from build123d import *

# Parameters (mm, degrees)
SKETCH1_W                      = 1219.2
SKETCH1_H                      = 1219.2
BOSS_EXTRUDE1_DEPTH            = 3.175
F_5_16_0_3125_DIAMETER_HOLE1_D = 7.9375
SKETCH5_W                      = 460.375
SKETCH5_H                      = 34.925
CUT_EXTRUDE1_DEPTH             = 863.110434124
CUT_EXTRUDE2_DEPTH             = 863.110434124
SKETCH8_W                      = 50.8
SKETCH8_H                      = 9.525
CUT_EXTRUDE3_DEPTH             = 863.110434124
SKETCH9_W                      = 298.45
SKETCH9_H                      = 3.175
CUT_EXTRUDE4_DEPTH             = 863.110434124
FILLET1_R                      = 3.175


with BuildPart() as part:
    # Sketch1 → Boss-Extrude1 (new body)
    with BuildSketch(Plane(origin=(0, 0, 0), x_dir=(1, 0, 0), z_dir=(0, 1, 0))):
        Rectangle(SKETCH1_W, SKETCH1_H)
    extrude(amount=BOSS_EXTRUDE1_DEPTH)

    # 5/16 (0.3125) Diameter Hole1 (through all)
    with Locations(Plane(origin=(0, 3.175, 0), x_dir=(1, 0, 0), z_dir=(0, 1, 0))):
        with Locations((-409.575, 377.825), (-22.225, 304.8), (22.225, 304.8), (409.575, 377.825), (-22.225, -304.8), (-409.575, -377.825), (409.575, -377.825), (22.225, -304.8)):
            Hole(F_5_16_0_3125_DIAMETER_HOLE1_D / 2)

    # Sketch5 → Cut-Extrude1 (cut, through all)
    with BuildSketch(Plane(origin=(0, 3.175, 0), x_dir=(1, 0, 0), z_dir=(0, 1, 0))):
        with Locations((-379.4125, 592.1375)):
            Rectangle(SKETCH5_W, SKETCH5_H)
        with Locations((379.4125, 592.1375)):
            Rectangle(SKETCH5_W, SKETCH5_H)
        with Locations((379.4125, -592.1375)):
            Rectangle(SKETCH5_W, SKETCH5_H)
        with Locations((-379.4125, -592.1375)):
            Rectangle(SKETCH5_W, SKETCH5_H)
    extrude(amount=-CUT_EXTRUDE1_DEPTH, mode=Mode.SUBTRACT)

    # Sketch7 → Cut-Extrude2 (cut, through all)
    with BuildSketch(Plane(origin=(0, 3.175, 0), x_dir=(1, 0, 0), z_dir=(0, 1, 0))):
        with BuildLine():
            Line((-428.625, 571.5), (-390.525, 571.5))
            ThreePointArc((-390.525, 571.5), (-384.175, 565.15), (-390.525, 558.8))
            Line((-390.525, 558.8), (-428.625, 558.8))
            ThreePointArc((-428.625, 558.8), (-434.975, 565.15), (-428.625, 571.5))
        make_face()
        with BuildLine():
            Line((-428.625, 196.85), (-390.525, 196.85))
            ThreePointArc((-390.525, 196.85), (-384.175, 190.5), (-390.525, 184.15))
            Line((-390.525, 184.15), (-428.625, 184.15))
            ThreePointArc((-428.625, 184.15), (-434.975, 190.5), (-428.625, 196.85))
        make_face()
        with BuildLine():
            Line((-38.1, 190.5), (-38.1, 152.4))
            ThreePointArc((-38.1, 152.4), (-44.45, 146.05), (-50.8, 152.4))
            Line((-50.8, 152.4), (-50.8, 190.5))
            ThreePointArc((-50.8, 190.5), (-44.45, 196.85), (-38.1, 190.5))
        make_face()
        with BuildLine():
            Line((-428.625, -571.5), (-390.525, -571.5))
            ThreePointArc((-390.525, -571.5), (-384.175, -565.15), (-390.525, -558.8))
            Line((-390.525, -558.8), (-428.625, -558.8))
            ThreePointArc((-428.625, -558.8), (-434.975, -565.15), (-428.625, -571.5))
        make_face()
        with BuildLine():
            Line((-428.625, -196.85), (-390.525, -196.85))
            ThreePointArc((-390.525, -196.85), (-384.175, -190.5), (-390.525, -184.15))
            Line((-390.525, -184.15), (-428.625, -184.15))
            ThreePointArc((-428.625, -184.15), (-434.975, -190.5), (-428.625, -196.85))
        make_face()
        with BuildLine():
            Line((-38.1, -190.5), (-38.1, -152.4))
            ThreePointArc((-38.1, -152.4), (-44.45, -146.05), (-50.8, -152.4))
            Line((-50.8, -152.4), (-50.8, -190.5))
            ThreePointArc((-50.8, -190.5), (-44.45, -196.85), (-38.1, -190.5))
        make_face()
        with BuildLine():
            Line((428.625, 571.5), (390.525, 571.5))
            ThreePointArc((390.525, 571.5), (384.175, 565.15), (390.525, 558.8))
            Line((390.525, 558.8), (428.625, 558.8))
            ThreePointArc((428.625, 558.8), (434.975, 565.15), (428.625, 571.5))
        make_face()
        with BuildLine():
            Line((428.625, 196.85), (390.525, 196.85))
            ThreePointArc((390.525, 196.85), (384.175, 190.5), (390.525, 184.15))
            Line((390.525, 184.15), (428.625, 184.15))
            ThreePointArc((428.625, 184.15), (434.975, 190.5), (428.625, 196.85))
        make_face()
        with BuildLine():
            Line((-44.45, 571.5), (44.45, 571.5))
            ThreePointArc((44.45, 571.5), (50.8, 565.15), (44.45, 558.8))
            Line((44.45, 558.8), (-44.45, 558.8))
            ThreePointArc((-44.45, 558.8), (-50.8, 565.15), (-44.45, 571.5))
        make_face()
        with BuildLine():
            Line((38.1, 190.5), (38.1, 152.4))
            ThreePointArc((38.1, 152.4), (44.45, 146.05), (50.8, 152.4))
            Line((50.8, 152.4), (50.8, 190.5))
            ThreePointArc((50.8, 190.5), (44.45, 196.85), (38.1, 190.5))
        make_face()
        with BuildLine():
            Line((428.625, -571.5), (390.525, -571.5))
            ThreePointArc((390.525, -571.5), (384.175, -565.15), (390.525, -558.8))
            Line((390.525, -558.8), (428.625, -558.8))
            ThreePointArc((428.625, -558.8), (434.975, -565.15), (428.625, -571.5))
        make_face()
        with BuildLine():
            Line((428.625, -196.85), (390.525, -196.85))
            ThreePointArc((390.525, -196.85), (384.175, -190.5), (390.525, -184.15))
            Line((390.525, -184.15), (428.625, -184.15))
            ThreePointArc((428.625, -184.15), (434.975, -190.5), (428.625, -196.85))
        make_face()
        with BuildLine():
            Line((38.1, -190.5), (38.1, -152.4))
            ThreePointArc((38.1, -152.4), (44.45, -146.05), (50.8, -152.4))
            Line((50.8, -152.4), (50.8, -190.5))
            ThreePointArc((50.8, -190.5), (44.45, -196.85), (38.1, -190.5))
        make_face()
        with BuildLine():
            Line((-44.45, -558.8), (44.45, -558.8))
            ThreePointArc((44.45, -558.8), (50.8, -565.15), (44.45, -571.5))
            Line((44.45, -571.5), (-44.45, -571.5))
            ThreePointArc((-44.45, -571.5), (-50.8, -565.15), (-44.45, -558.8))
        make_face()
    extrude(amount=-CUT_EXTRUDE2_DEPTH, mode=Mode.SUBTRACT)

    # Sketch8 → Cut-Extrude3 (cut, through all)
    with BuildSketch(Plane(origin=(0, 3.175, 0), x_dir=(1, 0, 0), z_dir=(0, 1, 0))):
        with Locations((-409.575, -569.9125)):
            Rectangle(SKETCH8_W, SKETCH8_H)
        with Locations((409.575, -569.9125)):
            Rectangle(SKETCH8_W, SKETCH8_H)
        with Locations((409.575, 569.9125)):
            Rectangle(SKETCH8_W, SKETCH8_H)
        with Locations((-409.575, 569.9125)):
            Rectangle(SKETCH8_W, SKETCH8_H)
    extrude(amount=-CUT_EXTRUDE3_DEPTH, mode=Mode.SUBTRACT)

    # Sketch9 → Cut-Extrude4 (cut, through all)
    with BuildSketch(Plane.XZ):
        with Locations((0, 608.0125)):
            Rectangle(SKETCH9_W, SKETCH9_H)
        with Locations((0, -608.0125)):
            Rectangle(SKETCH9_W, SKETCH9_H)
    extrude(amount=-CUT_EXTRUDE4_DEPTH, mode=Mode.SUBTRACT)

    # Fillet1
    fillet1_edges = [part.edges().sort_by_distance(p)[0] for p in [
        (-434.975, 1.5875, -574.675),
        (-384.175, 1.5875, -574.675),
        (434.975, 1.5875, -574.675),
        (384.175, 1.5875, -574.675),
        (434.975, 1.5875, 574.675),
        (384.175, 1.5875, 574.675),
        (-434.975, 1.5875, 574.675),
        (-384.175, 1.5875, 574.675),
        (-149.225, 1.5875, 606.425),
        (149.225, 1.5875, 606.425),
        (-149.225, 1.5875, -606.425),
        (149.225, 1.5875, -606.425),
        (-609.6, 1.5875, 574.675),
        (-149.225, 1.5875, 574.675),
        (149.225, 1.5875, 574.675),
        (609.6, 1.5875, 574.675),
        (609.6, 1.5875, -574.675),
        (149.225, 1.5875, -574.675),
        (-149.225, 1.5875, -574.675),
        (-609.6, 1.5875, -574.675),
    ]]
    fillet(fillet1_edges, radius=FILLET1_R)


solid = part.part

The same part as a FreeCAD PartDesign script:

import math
import FreeCAD as App
import Part
import Sketcher
Q = App.Units.Quantity


def edges_at(feature, points):
    """Names of the edges that pass closest to the given points."""
    edges = feature.Shape.Edges
    near = lambda p: min(range(len(edges)), key=lambda i: edges[i].distToShape(Part.Vertex(*p))[0])
    return sorted({f"Edge{near(p) + 1}" for p in points})

doc = App.newDocument("Part")
body = doc.addObject("PartDesign::Body", "Body")

# Sketch on XZ plane
sketch1 = doc.addObject("Sketcher::SketchObject", "Sketch")
body.addObject(sketch1)
sketch1.AttachmentSupport = (doc.XZ_Plane, [""])
sketch1.MapMode = "FlatFace"
sketch1.addGeometry([
    Part.LineSegment(App.Vector(-610, -610, 0), App.Vector(-610, 610, 0)),
    Part.LineSegment(App.Vector(-610, 610, 0), App.Vector(610, 610, 0)),
    Part.LineSegment(App.Vector(610, 610, 0), App.Vector(610, -610, 0)),
    Part.LineSegment(App.Vector(610, -610, 0), App.Vector(-610, -610, 0)),
], False)
sketch1.addConstraint([
    Sketcher.Constraint("Coincident", 0, 2, 1, 1),
    Sketcher.Constraint("Coincident", 1, 2, 2, 1),
    Sketcher.Constraint("Coincident", 2, 2, 3, 1),
    Sketcher.Constraint("Coincident", 3, 2, 0, 1),
    Sketcher.Constraint("Vertical", 0),
    Sketcher.Constraint("Horizontal", 1),
    Sketcher.Constraint("Vertical", 2),
    Sketcher.Constraint("Horizontal", 3),
    Sketcher.Constraint("Symmetric", 0, 2, 2, 2, -1, 1),
    Sketcher.Constraint("Equal", 3, 0),
    Sketcher.Constraint("DistanceX", 1, 1, 1, 2, Q("48 in")),
])
pad1 = doc.addObject("PartDesign::Pad", "Pad")
body.addObject(pad1)
pad1.Profile = sketch1
pad1.Length = Q("0.125 in")
pad1.Reversed = True

# Sketch on XZ plane
sketch2 = doc.addObject("Sketcher::SketchObject", "Sketch001")
body.addObject(sketch2)
sketch2.AttachmentSupport = (doc.XZ_Plane, [""])
sketch2.MapMode = "FlatFace"
sketch2.AttachmentOffset = App.Placement(App.Vector(0, 0, -0.125 * 25.4), App.Rotation())
sketch2.addGeometry([
    Part.Circle(App.Vector(-409.6, -377.8, 0), App.Vector(0, 0, 1), 4),  # 0
    Part.Circle(App.Vector(-22.2, -304.8, 0), App.Vector(0, 0, 1), 4),  # 1
    Part.Circle(App.Vector(22.2, -304.8, 0), App.Vector(0, 0, 1), 4),  # 2
    Part.Circle(App.Vector(409.6, -377.8, 0), App.Vector(0, 0, 1), 4),  # 3
    Part.Circle(App.Vector(-22.2, 304.8, 0), App.Vector(0, 0, 1), 4),  # 4
    Part.Circle(App.Vector(-409.6, 377.8, 0), App.Vector(0, 0, 1), 4),  # 5
    Part.Circle(App.Vector(409.6, 377.8, 0), App.Vector(0, 0, 1), 4),  # 6
    Part.Circle(App.Vector(22.2, 304.8, 0), App.Vector(0, 0, 1), 4),  # 7
], False)
sketch2.addConstraint([
    Sketcher.Constraint("Equal", 0, 1),
    Sketcher.Constraint("Equal", 1, 2),
    Sketcher.Constraint("Equal", 2, 3),
    Sketcher.Constraint("Equal", 3, 4),
    Sketcher.Constraint("Equal", 4, 5),
    Sketcher.Constraint("Equal", 5, 6),
    Sketcher.Constraint("Equal", 6, 7),
    Sketcher.Constraint("Symmetric", 2, 3, 4, 3, -1, 1),
    Sketcher.Constraint("Symmetric", 3, 3, 5, 3, -1, 1),
    Sketcher.Constraint("Symmetric", 0, 3, 6, 3, -1, 1),
    Sketcher.Constraint("Symmetric", 1, 3, 7, 3, -1, 1),
    Sketcher.Constraint("Symmetric", 1, 3, 2, 3, -2),
    Sketcher.Constraint("Symmetric", 0, 3, 3, 3, -2),
    Sketcher.Constraint("Diameter", 0, Q("0.3125 in")),
    Sketcher.Constraint("DistanceY", 1, 3, -1, 1, Q("12 in")),
    Sketcher.Constraint("DistanceX", 0, 3, 2, 3, Q("17 in")),
    Sketcher.Constraint("DistanceX", 0, 3, 1, 3, Q("15.25 in")),
    Sketcher.Constraint("DistanceY", 0, 3, 5, 3, Q("29.75 in")),
])
doc.recompute()
hole = doc.addObject("PartDesign::Hole", "Hole")
body.addObject(hole)
hole.Profile = sketch2
hole.ThreadType = "None"
hole.Diameter = Q("0.3125 in")
hole.DepthType = "ThroughAll"
hole.Reversed = True

# Sketch on XZ plane
sketch3 = doc.addObject("Sketcher::SketchObject", "Sketch002")
body.addObject(sketch3)
sketch3.AttachmentSupport = (doc.XZ_Plane, [""])
sketch3.MapMode = "FlatFace"
sketch3.AttachmentOffset = App.Placement(App.Vector(0, 0, -0.125 * 25.4), App.Rotation())
sketch3.addGeometry([
    Part.LineSegment(App.Vector(-610, -610, 0), App.Vector(-610, -575, 0)),  # 0
    Part.LineSegment(App.Vector(-610, -575, 0), App.Vector(-149, -575, 0)),  # 1
    Part.LineSegment(App.Vector(-149, -575, 0), App.Vector(-149, -610, 0)),  # 2
    Part.LineSegment(App.Vector(-149, -610, 0), App.Vector(-610, -610, 0)),  # 3
    Part.LineSegment(App.Vector(149, -610, 0), App.Vector(149, -575, 0)),  # 4
    Part.LineSegment(App.Vector(149, -575, 0), App.Vector(610, -575, 0)),  # 5
    Part.LineSegment(App.Vector(610, -575, 0), App.Vector(610, -610, 0)),  # 6
    Part.LineSegment(App.Vector(610, -610, 0), App.Vector(149, -610, 0)),  # 7
    Part.LineSegment(App.Vector(149, 575, 0), App.Vector(149, 610, 0)),  # 8
    Part.LineSegment(App.Vector(149, 610, 0), App.Vector(610, 610, 0)),  # 9
    Part.LineSegment(App.Vector(610, 610, 0), App.Vector(610, 575, 0)),  # 10
    Part.LineSegment(App.Vector(610, 575, 0), App.Vector(149, 575, 0)),  # 11
    Part.LineSegment(App.Vector(-610, 575, 0), App.Vector(-610, 610, 0)),  # 12
    Part.LineSegment(App.Vector(-610, 610, 0), App.Vector(-149, 610, 0)),  # 13
    Part.LineSegment(App.Vector(-149, 610, 0), App.Vector(-149, 575, 0)),  # 14
    Part.LineSegment(App.Vector(-149, 575, 0), App.Vector(-610, 575, 0)),  # 15
], False)
sketch3.addConstraint([
    Sketcher.Constraint("Coincident", 0, 2, 1, 1),
    Sketcher.Constraint("Coincident", 1, 2, 2, 1),
    Sketcher.Constraint("Coincident", 2, 2, 3, 1),
    Sketcher.Constraint("Coincident", 3, 2, 0, 1),
    Sketcher.Constraint("Coincident", 4, 2, 5, 1),
    Sketcher.Constraint("Coincident", 5, 2, 6, 1),
    Sketcher.Constraint("Coincident", 6, 2, 7, 1),
    Sketcher.Constraint("Coincident", 7, 2, 4, 1),
    Sketcher.Constraint("Coincident", 8, 2, 9, 1),
    Sketcher.Constraint("Coincident", 9, 2, 10, 1),
    Sketcher.Constraint("Coincident", 10, 2, 11, 1),
    Sketcher.Constraint("Coincident", 11, 2, 8, 1),
    Sketcher.Constraint("Coincident", 12, 2, 13, 1),
    Sketcher.Constraint("Coincident", 13, 2, 14, 1),
    Sketcher.Constraint("Coincident", 14, 2, 15, 1),
    Sketcher.Constraint("Coincident", 15, 2, 12, 1),
    Sketcher.Constraint("Vertical", 0),
    Sketcher.Constraint("Horizontal", 1),
    Sketcher.Constraint("Vertical", 2),
    Sketcher.Constraint("Horizontal", 3),
    Sketcher.Constraint("Vertical", 4),
    Sketcher.Constraint("Horizontal", 5),
    Sketcher.Constraint("Vertical", 6),
    Sketcher.Constraint("Horizontal", 7),
    Sketcher.Constraint("Vertical", 8),
    Sketcher.Constraint("Horizontal", 9),
    Sketcher.Constraint("Vertical", 10),
    Sketcher.Constraint("Horizontal", 11),
    Sketcher.Constraint("Vertical", 12),
    Sketcher.Constraint("Horizontal", 13),
    Sketcher.Constraint("Vertical", 14),
    Sketcher.Constraint("Horizontal", 15),
    Sketcher.Constraint("Symmetric", 2, 2, 8, 2, -1, 1),
    Sketcher.Constraint("Symmetric", 0, 2, 10, 2, -1, 1),
    Sketcher.Constraint("Symmetric", 6, 2, 12, 2, -1, 1),
    Sketcher.Constraint("Symmetric", 4, 2, 14, 2, -1, 1),
    Sketcher.Constraint("Symmetric", 1, 2, 4, 2, -2),
    Sketcher.Constraint("Symmetric", 3, 2, 6, 2, -2),
    Sketcher.Constraint("DistanceX", 0, 2, -1, 1, Q("24 in")),
    Sketcher.Constraint("DistanceY", 2, 2, -1, 1, Q("24 in")),
    Sketcher.Constraint("DistanceX", 1, 1, 1, 2, Q("18.125 in")),
    Sketcher.Constraint("DistanceY", 0, 1, 0, 2, Q("1.375 in")),
])
pocket1 = doc.addObject("PartDesign::Pocket", "Pocket")
body.addObject(pocket1)
pocket1.Profile = sketch3
pocket1.Type = "ThroughAll"
pocket1.Reversed = True

# Sketch on XZ plane
sketch4 = doc.addObject("Sketcher::SketchObject", "Sketch003")
body.addObject(sketch4)
sketch4.AttachmentSupport = (doc.XZ_Plane, [""])
sketch4.MapMode = "FlatFace"
sketch4.AttachmentOffset = App.Placement(App.Vector(0, 0, -0.125 * 25.4), App.Rotation())
sketch4.addGeometry([
    Part.LineSegment(App.Vector(-391, -572, 0), App.Vector(-429, -572, 0)),  # 0
    Part.ArcOfCircle(Part.Circle(App.Vector(-429, -565, 0), App.Vector(0, 0, 1), 6), math.radians(90), math.radians(270)),  # 1
    Part.LineSegment(App.Vector(-429, -559, 0), App.Vector(-391, -559, 0)),  # 2
    Part.ArcOfCircle(Part.Circle(App.Vector(-391, -565, 0), App.Vector(0, 0, 1), 6), math.radians(-90), math.radians(90)),  # 3
    Part.LineSegment(App.Vector(-391, -197, 0), App.Vector(-429, -197, 0)),  # 4
    Part.ArcOfCircle(Part.Circle(App.Vector(-429, -190, 0), App.Vector(0, 0, 1), 6), math.radians(90), math.radians(270)),  # 5
    Part.LineSegment(App.Vector(-429, -184, 0), App.Vector(-391, -184, 0)),  # 6
    Part.ArcOfCircle(Part.Circle(App.Vector(-391, -190, 0), App.Vector(0, 0, 1), 6), math.radians(-90), math.radians(90)),  # 7
    Part.LineSegment(App.Vector(-38, -152, 0), App.Vector(-38, -190, 0)),  # 8
    Part.ArcOfCircle(Part.Circle(App.Vector(-44, -190, 0), App.Vector(0, 0, 1), 6), math.radians(180), math.radians(360)),  # 9
    Part.LineSegment(App.Vector(-51, -190, 0), App.Vector(-51, -152, 0)),  # 10
    Part.ArcOfCircle(Part.Circle(App.Vector(-44, -152, 0), App.Vector(0, 0, 1), 6), math.radians(0), math.radians(180)),  # 11
    Part.LineSegment(App.Vector(-429, 572, 0), App.Vector(-391, 572, 0)),  # 12
    Part.ArcOfCircle(Part.Circle(App.Vector(-391, 565, 0), App.Vector(0, 0, 1), 6), math.radians(-90), math.radians(90)),  # 13
    Part.LineSegment(App.Vector(-391, 559, 0), App.Vector(-429, 559, 0)),  # 14
    Part.ArcOfCircle(Part.Circle(App.Vector(-429, 565, 0), App.Vector(0, 0, 1), 6), math.radians(90), math.radians(270)),  # 15
    Part.LineSegment(App.Vector(-429, 197, 0), App.Vector(-391, 197, 0)),  # 16
    Part.ArcOfCircle(Part.Circle(App.Vector(-391, 190, 0), App.Vector(0, 0, 1), 6), math.radians(-90), math.radians(90)),  # 17
    Part.LineSegment(App.Vector(-391, 184, 0), App.Vector(-429, 184, 0)),  # 18
    Part.ArcOfCircle(Part.Circle(App.Vector(-429, 190, 0), App.Vector(0, 0, 1), 6), math.radians(90), math.radians(270)),  # 19
    Part.LineSegment(App.Vector(-38, 190, 0), App.Vector(-38, 152, 0)),  # 20
    Part.ArcOfCircle(Part.Circle(App.Vector(-44, 152, 0), App.Vector(0, 0, 1), 6), math.radians(180), math.radians(360)),  # 21
    Part.LineSegment(App.Vector(-51, 152, 0), App.Vector(-51, 190, 0)),  # 22
    Part.ArcOfCircle(Part.Circle(App.Vector(-44, 190, 0), App.Vector(0, 0, 1), 6), math.radians(0), math.radians(180)),  # 23
    Part.LineSegment(App.Vector(429, -572, 0), App.Vector(391, -572, 0)),  # 24
    Part.ArcOfCircle(Part.Circle(App.Vector(391, -565, 0), App.Vector(0, 0, 1), 6), math.radians(90), math.radians(270)),  # 25
    Part.LineSegment(App.Vector(391, -559, 0), App.Vector(429, -559, 0)),  # 26
    Part.ArcOfCircle(Part.Circle(App.Vector(429, -565, 0), App.Vector(0, 0, 1), 6), math.radians(-90), math.radians(90)),  # 27
    Part.LineSegment(App.Vector(429, -197, 0), App.Vector(391, -197, 0)),  # 28
    Part.ArcOfCircle(Part.Circle(App.Vector(391, -190, 0), App.Vector(0, 0, 1), 6), math.radians(90), math.radians(270)),  # 29
    Part.LineSegment(App.Vector(391, -184, 0), App.Vector(429, -184, 0)),  # 30
    Part.ArcOfCircle(Part.Circle(App.Vector(429, -190, 0), App.Vector(0, 0, 1), 6), math.radians(-90), math.radians(90)),  # 31
    Part.LineSegment(App.Vector(44, -572, 0), App.Vector(-44, -572, 0)),  # 32
    Part.ArcOfCircle(Part.Circle(App.Vector(-44, -565, 0), App.Vector(0, 0, 1), 6), math.radians(90), math.radians(270)),  # 33
    Part.LineSegment(App.Vector(-44, -559, 0), App.Vector(44, -559, 0)),  # 34
    Part.ArcOfCircle(Part.Circle(App.Vector(44, -565, 0), App.Vector(0, 0, 1), 6), math.radians(-90), math.radians(90)),  # 35
    Part.LineSegment(App.Vector(38, -190, 0), App.Vector(38, -152, 0)),  # 36
    Part.ArcOfCircle(Part.Circle(App.Vector(44, -152, 0), App.Vector(0, 0, 1), 6), math.radians(0), math.radians(180)),  # 37
    Part.LineSegment(App.Vector(51, -152, 0), App.Vector(51, -190, 0)),  # 38
    Part.ArcOfCircle(Part.Circle(App.Vector(44, -190, 0), App.Vector(0, 0, 1), 6), math.radians(180), math.radians(360)),  # 39
    Part.LineSegment(App.Vector(391, 572, 0), App.Vector(429, 572, 0)),  # 40
    Part.ArcOfCircle(Part.Circle(App.Vector(429, 565, 0), App.Vector(0, 0, 1), 6), math.radians(-90), math.radians(90)),  # 41
    Part.LineSegment(App.Vector(429, 559, 0), App.Vector(391, 559, 0)),  # 42
    Part.ArcOfCircle(Part.Circle(App.Vector(391, 565, 0), App.Vector(0, 0, 1), 6), math.radians(90), math.radians(270)),  # 43
    Part.LineSegment(App.Vector(391, 197, 0), App.Vector(429, 197, 0)),  # 44
    Part.ArcOfCircle(Part.Circle(App.Vector(429, 190, 0), App.Vector(0, 0, 1), 6), math.radians(-90), math.radians(90)),  # 45
    Part.LineSegment(App.Vector(429, 184, 0), App.Vector(391, 184, 0)),  # 46
    Part.ArcOfCircle(Part.Circle(App.Vector(391, 190, 0), App.Vector(0, 0, 1), 6), math.radians(90), math.radians(270)),  # 47
    Part.LineSegment(App.Vector(38, 152, 0), App.Vector(38, 190, 0)),  # 48
    Part.ArcOfCircle(Part.Circle(App.Vector(44, 190, 0), App.Vector(0, 0, 1), 6), math.radians(0), math.radians(180)),  # 49
    Part.LineSegment(App.Vector(51, 190, 0), App.Vector(51, 152, 0)),  # 50
    Part.ArcOfCircle(Part.Circle(App.Vector(44, 152, 0), App.Vector(0, 0, 1), 6), math.radians(180), math.radians(360)),  # 51
    Part.LineSegment(App.Vector(44, 559, 0), App.Vector(-44, 559, 0)),  # 52
    Part.ArcOfCircle(Part.Circle(App.Vector(-44, 565, 0), App.Vector(0, 0, 1), 6), math.radians(90), math.radians(270)),  # 53
    Part.LineSegment(App.Vector(-44, 572, 0), App.Vector(44, 572, 0)),  # 54
    Part.ArcOfCircle(Part.Circle(App.Vector(44, 565, 0), App.Vector(0, 0, 1), 6), math.radians(-90), math.radians(90)),  # 55
], False)
sketch4.addConstraint([
    Sketcher.Constraint("Tangent", 0, 2, 1, 2),
    Sketcher.Constraint("Tangent", 1, 1, 2, 1),
    Sketcher.Constraint("Tangent", 2, 2, 3, 2),
    Sketcher.Constraint("Tangent", 3, 1, 0, 1),
    Sketcher.Constraint("Tangent", 4, 2, 5, 2),
    Sketcher.Constraint("Tangent", 5, 1, 6, 1),
    Sketcher.Constraint("Tangent", 6, 2, 7, 2),
    Sketcher.Constraint("Tangent", 7, 1, 4, 1),
    Sketcher.Constraint("Tangent", 8, 2, 9, 2),
    Sketcher.Constraint("Tangent", 9, 1, 10, 1),
    Sketcher.Constraint("Tangent", 10, 2, 11, 2),
    Sketcher.Constraint("Tangent", 11, 1, 8, 1),
    Sketcher.Constraint("Tangent", 12, 2, 13, 2),
    Sketcher.Constraint("Tangent", 13, 1, 14, 1),
    Sketcher.Constraint("Tangent", 14, 2, 15, 2),
    Sketcher.Constraint("Tangent", 15, 1, 12, 1),
    Sketcher.Constraint("Tangent", 16, 2, 17, 2),
    Sketcher.Constraint("Tangent", 17, 1, 18, 1),
    Sketcher.Constraint("Tangent", 18, 2, 19, 2),
    Sketcher.Constraint("Tangent", 19, 1, 16, 1),
    Sketcher.Constraint("Tangent", 20, 2, 21, 2),
    Sketcher.Constraint("Tangent", 21, 1, 22, 1),
    Sketcher.Constraint("Tangent", 22, 2, 23, 2),
    Sketcher.Constraint("Tangent", 23, 1, 20, 1),
    Sketcher.Constraint("Tangent", 24, 2, 25, 2),
    Sketcher.Constraint("Tangent", 25, 1, 26, 1),
    Sketcher.Constraint("Tangent", 26, 2, 27, 2),
    Sketcher.Constraint("Tangent", 27, 1, 24, 1),
    Sketcher.Constraint("Tangent", 28, 2, 29, 2),
    Sketcher.Constraint("Tangent", 29, 1, 30, 1),
    Sketcher.Constraint("Tangent", 30, 2, 31, 2),
    Sketcher.Constraint("Tangent", 31, 1, 28, 1),
    Sketcher.Constraint("Tangent", 32, 2, 33, 2),
    Sketcher.Constraint("Tangent", 33, 1, 34, 1),
    Sketcher.Constraint("Tangent", 34, 2, 35, 2),
    Sketcher.Constraint("Tangent", 35, 1, 32, 1),
    Sketcher.Constraint("Tangent", 36, 2, 37, 2),
    Sketcher.Constraint("Tangent", 37, 1, 38, 1),
    Sketcher.Constraint("Tangent", 38, 2, 39, 2),
    Sketcher.Constraint("Tangent", 39, 1, 36, 1),
    Sketcher.Constraint("Tangent", 40, 2, 41, 2),
    Sketcher.Constraint("Tangent", 41, 1, 42, 1),
    Sketcher.Constraint("Tangent", 42, 2, 43, 2),
    Sketcher.Constraint("Tangent", 43, 1, 40, 1),
    Sketcher.Constraint("Tangent", 44, 2, 45, 2),
    Sketcher.Constraint("Tangent", 45, 1, 46, 1),
    Sketcher.Constraint("Tangent", 46, 2, 47, 2),
    Sketcher.Constraint("Tangent", 47, 1, 44, 1),
    Sketcher.Constraint("Tangent", 48, 2, 49, 2),
    Sketcher.Constraint("Tangent", 49, 1, 50, 1),
    Sketcher.Constraint("Tangent", 50, 2, 51, 2),
    Sketcher.Constraint("Tangent", 51, 1, 48, 1),
    Sketcher.Constraint("Tangent", 52, 2, 53, 2),
    Sketcher.Constraint("Tangent", 53, 1, 54, 1),
    Sketcher.Constraint("Tangent", 54, 2, 55, 2),
    Sketcher.Constraint("Tangent", 55, 1, 52, 1),
    Sketcher.Constraint("Horizontal", 0),
    Sketcher.Constraint("Horizontal", 2),
    Sketcher.Constraint("Horizontal", 4),
    Sketcher.Constraint("Horizontal", 6),
    Sketcher.Constraint("Vertical", 8),
    Sketcher.Constraint("Vertical", 10),
    Sketcher.Constraint("Horizontal", 12),
    Sketcher.Constraint("Horizontal", 14),
    Sketcher.Constraint("Horizontal", 16),
    Sketcher.Constraint("Horizontal", 18),
    Sketcher.Constraint("Vertical", 20),
    Sketcher.Constraint("Vertical", 22),
    Sketcher.Constraint("Horizontal", 24),
    Sketcher.Constraint("Horizontal", 26),
    Sketcher.Constraint("Horizontal", 28),
    Sketcher.Constraint("Horizontal", 30),
    Sketcher.Constraint("Horizontal", 32),
    Sketcher.Constraint("Horizontal", 34),
    Sketcher.Constraint("Vertical", 36),
    Sketcher.Constraint("Vertical", 38),
    Sketcher.Constraint("Horizontal", 40),
    Sketcher.Constraint("Horizontal", 42),
    Sketcher.Constraint("Horizontal", 44),
    Sketcher.Constraint("Horizontal", 46),
    Sketcher.Constraint("Vertical", 48),
    Sketcher.Constraint("Vertical", 50),
    Sketcher.Constraint("Horizontal", 52),
    Sketcher.Constraint("Horizontal", 54),
    Sketcher.Constraint("Equal", 3, 5),
    Sketcher.Constraint("Equal", 7, 9),
    Sketcher.Constraint("Equal", 11, 13),
    Sketcher.Constraint("Equal", 15, 17),
    Sketcher.Constraint("Equal", 19, 21),
    Sketcher.Constraint("Equal", 23, 25),
    Sketcher.Constraint("Equal", 27, 29),
    Sketcher.Constraint("Equal", 31, 33),
    Sketcher.Constraint("Equal", 35, 37),
    Sketcher.Constraint("Equal", 39, 41),
    Sketcher.Constraint("Equal", 43, 45),
    Sketcher.Constraint("Equal", 47, 49),
    Sketcher.Constraint("Equal", 51, 53),
    Sketcher.Constraint("Symmetric", 13, 3, 25, 3, -1, 1),
    Sketcher.Constraint("Symmetric", 17, 3, 29, 3, -1, 1),
    Sketcher.Constraint("Symmetric", 21, 3, 37, 3, -1, 1),
    Sketcher.Constraint("Symmetric", 1, 3, 41, 3, -1, 1),
    Sketcher.Constraint("Symmetric", 5, 3, 45, 3, -1, 1),
    Sketcher.Constraint("Symmetric", 9, 3, 49, 3, -1, 1),
    Sketcher.Constraint("Symmetric", 35, 3, 53, 3, -1, 1),
    Sketcher.Constraint("Symmetric", 3, 3, 25, 3, -2),
    Sketcher.Constraint("Symmetric", 7, 3, 29, 3, -2),
    Sketcher.Constraint("Symmetric", 11, 3, 37, 3, -2),
    Sketcher.Constraint("Horizontal", 7, 3, 9, 3),
    Sketcher.Constraint("Horizontal", 19, 3, 23, 3),
    Sketcher.Constraint("Horizontal", 27, 3, 33, 3),
    Sketcher.Constraint("Horizontal", 31, 3, 39, 3),
    Sketcher.Constraint("Horizontal", 21, 3, 51, 3),
    Sketcher.Constraint("Vertical", 1, 3, 5, 3),
    Sketcher.Constraint("Vertical", 3, 3, 7, 3),
    Sketcher.Constraint("Vertical", 5, 3, 15, 3),
    Sketcher.Constraint("Vertical", 15, 3, 19, 3),
    Sketcher.Constraint("Vertical", 27, 3, 31, 3),
    Sketcher.Constraint("Vertical", 23, 3, 33, 3),
    Sketcher.Constraint("Vertical", 35, 3, 37, 3),
    Sketcher.Constraint("Vertical", 31, 3, 41, 3),
    Sketcher.Constraint("Vertical", 29, 3, 43, 3),
    Sketcher.Constraint("Vertical", 43, 3, 47, 3),
    Sketcher.Constraint("Vertical", 51, 3, 55, 3),
    Sketcher.Constraint("Equal", 46, 8),
    Sketcher.Constraint("Radius", 1, Q("0.25 in")),
    Sketcher.Constraint("DistanceX", 0, 2, 0, 1, Q("1.5 in")),
    Sketcher.Constraint("DistanceX", 32, 2, 32, 1, Q("3.5 in")),
    Sketcher.Constraint("DistanceY", 11, 3, -1, 1, Q("6 in")),
    Sketcher.Constraint("DistanceY", 1, 1, -1, 1, Q("22 in")),
    Sketcher.Constraint("DistanceX", 1, 3, -1, 1, Q("16.875 in")),
])
pocket2 = doc.addObject("PartDesign::Pocket", "Pocket001")
body.addObject(pocket2)
pocket2.Profile = sketch4
pocket2.Type = "ThroughAll"
pocket2.Reversed = True

# Sketch on XZ plane
sketch5 = doc.addObject("Sketcher::SketchObject", "Sketch004")
body.addObject(sketch5)
sketch5.AttachmentSupport = (doc.XZ_Plane, [""])
sketch5.MapMode = "FlatFace"
sketch5.AttachmentOffset = App.Placement(App.Vector(0, 0, -0.125 * 25.4), App.Rotation())
sketch5.addGeometry([
    Part.LineSegment(App.Vector(-435, 565, 0), App.Vector(-435, 575, 0)),  # 0
    Part.LineSegment(App.Vector(-435, 575, 0), App.Vector(-384, 575, 0)),  # 1
    Part.LineSegment(App.Vector(-384, 575, 0), App.Vector(-384, 565, 0)),  # 2
    Part.LineSegment(App.Vector(-384, 565, 0), App.Vector(-435, 565, 0)),  # 3
    Part.LineSegment(App.Vector(384, 565, 0), App.Vector(384, 575, 0)),  # 4
    Part.LineSegment(App.Vector(384, 575, 0), App.Vector(435, 575, 0)),  # 5
    Part.LineSegment(App.Vector(435, 575, 0), App.Vector(435, 565, 0)),  # 6
    Part.LineSegment(App.Vector(435, 565, 0), App.Vector(384, 565, 0)),  # 7
    Part.LineSegment(App.Vector(384, -575, 0), App.Vector(384, -565, 0)),  # 8
    Part.LineSegment(App.Vector(384, -565, 0), App.Vector(435, -565, 0)),  # 9
    Part.LineSegment(App.Vector(435, -565, 0), App.Vector(435, -575, 0)),  # 10
    Part.LineSegment(App.Vector(435, -575, 0), App.Vector(384, -575, 0)),  # 11
    Part.LineSegment(App.Vector(-435, -575, 0), App.Vector(-435, -565, 0)),  # 12
    Part.LineSegment(App.Vector(-435, -565, 0), App.Vector(-384, -565, 0)),  # 13
    Part.LineSegment(App.Vector(-384, -565, 0), App.Vector(-384, -575, 0)),  # 14
    Part.LineSegment(App.Vector(-384, -575, 0), App.Vector(-435, -575, 0)),  # 15
], False)
sketch5.addConstraint([
    Sketcher.Constraint("Coincident", 0, 2, 1, 1),
    Sketcher.Constraint("Coincident", 1, 2, 2, 1),
    Sketcher.Constraint("Coincident", 2, 2, 3, 1),
    Sketcher.Constraint("Coincident", 3, 2, 0, 1),
    Sketcher.Constraint("Coincident", 4, 2, 5, 1),
    Sketcher.Constraint("Coincident", 5, 2, 6, 1),
    Sketcher.Constraint("Coincident", 6, 2, 7, 1),
    Sketcher.Constraint("Coincident", 7, 2, 4, 1),
    Sketcher.Constraint("Coincident", 8, 2, 9, 1),
    Sketcher.Constraint("Coincident", 9, 2, 10, 1),
    Sketcher.Constraint("Coincident", 10, 2, 11, 1),
    Sketcher.Constraint("Coincident", 11, 2, 8, 1),
    Sketcher.Constraint("Coincident", 12, 2, 13, 1),
    Sketcher.Constraint("Coincident", 13, 2, 14, 1),
    Sketcher.Constraint("Coincident", 14, 2, 15, 1),
    Sketcher.Constraint("Coincident", 15, 2, 12, 1),
    Sketcher.Constraint("Vertical", 0),
    Sketcher.Constraint("Horizontal", 1),
    Sketcher.Constraint("Vertical", 2),
    Sketcher.Constraint("Horizontal", 3),
    Sketcher.Constraint("Vertical", 4),
    Sketcher.Constraint("Horizontal", 5),
    Sketcher.Constraint("Vertical", 6),
    Sketcher.Constraint("Horizontal", 7),
    Sketcher.Constraint("Vertical", 8),
    Sketcher.Constraint("Horizontal", 9),
    Sketcher.Constraint("Vertical", 10),
    Sketcher.Constraint("Horizontal", 11),
    Sketcher.Constraint("Vertical", 12),
    Sketcher.Constraint("Horizontal", 13),
    Sketcher.Constraint("Vertical", 14),
    Sketcher.Constraint("Horizontal", 15),
    Sketcher.Constraint("Symmetric", 2, 2, 8, 2, -1, 1),
    Sketcher.Constraint("Symmetric", 0, 2, 10, 2, -1, 1),
    Sketcher.Constraint("Symmetric", 6, 2, 12, 2, -1, 1),
    Sketcher.Constraint("Symmetric", 4, 2, 14, 2, -1, 1),
    Sketcher.Constraint("Symmetric", 1, 2, 4, 2, -2),
    Sketcher.Constraint("Symmetric", 3, 2, 6, 2, -2),
    Sketcher.Constraint("DistanceX", 1, 1, 1, 2, Q("2 in")),
    Sketcher.Constraint("DistanceY", 8, 2, 7, 2, Q("44.5 in")),
    Sketcher.Constraint("DistanceY", 0, 1, 0, 2, Q("0.375 in")),
    Sketcher.Constraint("DistanceX", 1, 2, 4, 2, Q("30.25 in")),
])
pocket3 = doc.addObject("PartDesign::Pocket", "Pocket002")
body.addObject(pocket3)
pocket3.Profile = sketch5
pocket3.Type = "ThroughAll"
pocket3.Reversed = True

# Sketch on XZ plane
sketch6 = doc.addObject("Sketcher::SketchObject", "Sketch005")
body.addObject(sketch6)
sketch6.AttachmentSupport = (doc.XZ_Plane, [""])
sketch6.MapMode = "FlatFace"
sketch6.addGeometry([
    Part.LineSegment(App.Vector(-149.2, 609.6, 0), App.Vector(-149.2, 606.4, 0)),  # 0
    Part.LineSegment(App.Vector(-149.2, 606.4, 0), App.Vector(149.2, 606.4, 0)),  # 1
    Part.LineSegment(App.Vector(149.2, 606.4, 0), App.Vector(149.2, 609.6, 0)),  # 2
    Part.LineSegment(App.Vector(149.2, 609.6, 0), App.Vector(-149.2, 609.6, 0)),  # 3
    Part.LineSegment(App.Vector(-149.2, -606.4, 0), App.Vector(-149.2, -609.6, 0)),  # 4
    Part.LineSegment(App.Vector(-149.2, -609.6, 0), App.Vector(149.2, -609.6, 0)),  # 5
    Part.LineSegment(App.Vector(149.2, -609.6, 0), App.Vector(149.2, -606.4, 0)),  # 6
    Part.LineSegment(App.Vector(149.2, -606.4, 0), App.Vector(-149.2, -606.4, 0)),  # 7
], False)
sketch6.addConstraint([
    Sketcher.Constraint("Coincident", 0, 2, 1, 1),
    Sketcher.Constraint("Coincident", 1, 2, 2, 1),
    Sketcher.Constraint("Coincident", 2, 2, 3, 1),
    Sketcher.Constraint("Coincident", 3, 2, 0, 1),
    Sketcher.Constraint("Coincident", 4, 2, 5, 1),
    Sketcher.Constraint("Coincident", 5, 2, 6, 1),
    Sketcher.Constraint("Coincident", 6, 2, 7, 1),
    Sketcher.Constraint("Coincident", 7, 2, 4, 1),
    Sketcher.Constraint("Vertical", 0),
    Sketcher.Constraint("Horizontal", 1),
    Sketcher.Constraint("Vertical", 2),
    Sketcher.Constraint("Horizontal", 3),
    Sketcher.Constraint("Vertical", 4),
    Sketcher.Constraint("Horizontal", 5),
    Sketcher.Constraint("Vertical", 6),
    Sketcher.Constraint("Horizontal", 7),
    Sketcher.Constraint("Symmetric", 2, 2, 4, 2, -1, 1),
    Sketcher.Constraint("Symmetric", 0, 2, 6, 2, -1, 1),
    Sketcher.Constraint("Vertical", 3, 2, 4, 2),
    Sketcher.Constraint("DistanceY", -1, 1, 2, 2, Q("24 in")),
    Sketcher.Constraint("DistanceX", 1, 1, 1, 2, Q("11.75 in")),
    Sketcher.Constraint("DistanceY", 0, 2, 0, 1, Q("0.125 in")),
])
pocket4 = doc.addObject("PartDesign::Pocket", "Pocket003")
body.addObject(pocket4)
pocket4.Profile = sketch6
pocket4.Type = "ThroughAll"
doc.recompute()

fillet = doc.addObject("PartDesign::Fillet", "Fillet")
body.addObject(fillet)
fillet.Base = (pocket4, edges_at(pocket4, [
    (-434.975, 1.587, -574.675),
    (-384.175, 1.587, -574.675),
    (434.975, 1.587, -574.675),
    (384.175, 1.587, -574.675),
    (434.975, 1.587, 574.675),
    (384.175, 1.587, 574.675),
    (-434.975, 1.587, 574.675),
    (-384.175, 1.587, 574.675),
    (-149.225, 1.587, 606.425),
    (149.225, 1.587, 606.425),
    (-149.225, 1.587, -606.425),
    (149.225, 1.587, -606.425),
    (-609.6, 1.587, 574.675),
    (-149.225, 1.587, 574.675),
    (149.225, 1.587, 574.675),
    (609.6, 1.587, 574.675),
    (609.6, 1.587, -574.675),
    (149.225, 1.587, -574.675),
    (-149.225, 1.587, -574.675),
    (-609.6, 1.587, -574.675),
]))
fillet.Radius = Q("0.125 in")

doc.recompute()
